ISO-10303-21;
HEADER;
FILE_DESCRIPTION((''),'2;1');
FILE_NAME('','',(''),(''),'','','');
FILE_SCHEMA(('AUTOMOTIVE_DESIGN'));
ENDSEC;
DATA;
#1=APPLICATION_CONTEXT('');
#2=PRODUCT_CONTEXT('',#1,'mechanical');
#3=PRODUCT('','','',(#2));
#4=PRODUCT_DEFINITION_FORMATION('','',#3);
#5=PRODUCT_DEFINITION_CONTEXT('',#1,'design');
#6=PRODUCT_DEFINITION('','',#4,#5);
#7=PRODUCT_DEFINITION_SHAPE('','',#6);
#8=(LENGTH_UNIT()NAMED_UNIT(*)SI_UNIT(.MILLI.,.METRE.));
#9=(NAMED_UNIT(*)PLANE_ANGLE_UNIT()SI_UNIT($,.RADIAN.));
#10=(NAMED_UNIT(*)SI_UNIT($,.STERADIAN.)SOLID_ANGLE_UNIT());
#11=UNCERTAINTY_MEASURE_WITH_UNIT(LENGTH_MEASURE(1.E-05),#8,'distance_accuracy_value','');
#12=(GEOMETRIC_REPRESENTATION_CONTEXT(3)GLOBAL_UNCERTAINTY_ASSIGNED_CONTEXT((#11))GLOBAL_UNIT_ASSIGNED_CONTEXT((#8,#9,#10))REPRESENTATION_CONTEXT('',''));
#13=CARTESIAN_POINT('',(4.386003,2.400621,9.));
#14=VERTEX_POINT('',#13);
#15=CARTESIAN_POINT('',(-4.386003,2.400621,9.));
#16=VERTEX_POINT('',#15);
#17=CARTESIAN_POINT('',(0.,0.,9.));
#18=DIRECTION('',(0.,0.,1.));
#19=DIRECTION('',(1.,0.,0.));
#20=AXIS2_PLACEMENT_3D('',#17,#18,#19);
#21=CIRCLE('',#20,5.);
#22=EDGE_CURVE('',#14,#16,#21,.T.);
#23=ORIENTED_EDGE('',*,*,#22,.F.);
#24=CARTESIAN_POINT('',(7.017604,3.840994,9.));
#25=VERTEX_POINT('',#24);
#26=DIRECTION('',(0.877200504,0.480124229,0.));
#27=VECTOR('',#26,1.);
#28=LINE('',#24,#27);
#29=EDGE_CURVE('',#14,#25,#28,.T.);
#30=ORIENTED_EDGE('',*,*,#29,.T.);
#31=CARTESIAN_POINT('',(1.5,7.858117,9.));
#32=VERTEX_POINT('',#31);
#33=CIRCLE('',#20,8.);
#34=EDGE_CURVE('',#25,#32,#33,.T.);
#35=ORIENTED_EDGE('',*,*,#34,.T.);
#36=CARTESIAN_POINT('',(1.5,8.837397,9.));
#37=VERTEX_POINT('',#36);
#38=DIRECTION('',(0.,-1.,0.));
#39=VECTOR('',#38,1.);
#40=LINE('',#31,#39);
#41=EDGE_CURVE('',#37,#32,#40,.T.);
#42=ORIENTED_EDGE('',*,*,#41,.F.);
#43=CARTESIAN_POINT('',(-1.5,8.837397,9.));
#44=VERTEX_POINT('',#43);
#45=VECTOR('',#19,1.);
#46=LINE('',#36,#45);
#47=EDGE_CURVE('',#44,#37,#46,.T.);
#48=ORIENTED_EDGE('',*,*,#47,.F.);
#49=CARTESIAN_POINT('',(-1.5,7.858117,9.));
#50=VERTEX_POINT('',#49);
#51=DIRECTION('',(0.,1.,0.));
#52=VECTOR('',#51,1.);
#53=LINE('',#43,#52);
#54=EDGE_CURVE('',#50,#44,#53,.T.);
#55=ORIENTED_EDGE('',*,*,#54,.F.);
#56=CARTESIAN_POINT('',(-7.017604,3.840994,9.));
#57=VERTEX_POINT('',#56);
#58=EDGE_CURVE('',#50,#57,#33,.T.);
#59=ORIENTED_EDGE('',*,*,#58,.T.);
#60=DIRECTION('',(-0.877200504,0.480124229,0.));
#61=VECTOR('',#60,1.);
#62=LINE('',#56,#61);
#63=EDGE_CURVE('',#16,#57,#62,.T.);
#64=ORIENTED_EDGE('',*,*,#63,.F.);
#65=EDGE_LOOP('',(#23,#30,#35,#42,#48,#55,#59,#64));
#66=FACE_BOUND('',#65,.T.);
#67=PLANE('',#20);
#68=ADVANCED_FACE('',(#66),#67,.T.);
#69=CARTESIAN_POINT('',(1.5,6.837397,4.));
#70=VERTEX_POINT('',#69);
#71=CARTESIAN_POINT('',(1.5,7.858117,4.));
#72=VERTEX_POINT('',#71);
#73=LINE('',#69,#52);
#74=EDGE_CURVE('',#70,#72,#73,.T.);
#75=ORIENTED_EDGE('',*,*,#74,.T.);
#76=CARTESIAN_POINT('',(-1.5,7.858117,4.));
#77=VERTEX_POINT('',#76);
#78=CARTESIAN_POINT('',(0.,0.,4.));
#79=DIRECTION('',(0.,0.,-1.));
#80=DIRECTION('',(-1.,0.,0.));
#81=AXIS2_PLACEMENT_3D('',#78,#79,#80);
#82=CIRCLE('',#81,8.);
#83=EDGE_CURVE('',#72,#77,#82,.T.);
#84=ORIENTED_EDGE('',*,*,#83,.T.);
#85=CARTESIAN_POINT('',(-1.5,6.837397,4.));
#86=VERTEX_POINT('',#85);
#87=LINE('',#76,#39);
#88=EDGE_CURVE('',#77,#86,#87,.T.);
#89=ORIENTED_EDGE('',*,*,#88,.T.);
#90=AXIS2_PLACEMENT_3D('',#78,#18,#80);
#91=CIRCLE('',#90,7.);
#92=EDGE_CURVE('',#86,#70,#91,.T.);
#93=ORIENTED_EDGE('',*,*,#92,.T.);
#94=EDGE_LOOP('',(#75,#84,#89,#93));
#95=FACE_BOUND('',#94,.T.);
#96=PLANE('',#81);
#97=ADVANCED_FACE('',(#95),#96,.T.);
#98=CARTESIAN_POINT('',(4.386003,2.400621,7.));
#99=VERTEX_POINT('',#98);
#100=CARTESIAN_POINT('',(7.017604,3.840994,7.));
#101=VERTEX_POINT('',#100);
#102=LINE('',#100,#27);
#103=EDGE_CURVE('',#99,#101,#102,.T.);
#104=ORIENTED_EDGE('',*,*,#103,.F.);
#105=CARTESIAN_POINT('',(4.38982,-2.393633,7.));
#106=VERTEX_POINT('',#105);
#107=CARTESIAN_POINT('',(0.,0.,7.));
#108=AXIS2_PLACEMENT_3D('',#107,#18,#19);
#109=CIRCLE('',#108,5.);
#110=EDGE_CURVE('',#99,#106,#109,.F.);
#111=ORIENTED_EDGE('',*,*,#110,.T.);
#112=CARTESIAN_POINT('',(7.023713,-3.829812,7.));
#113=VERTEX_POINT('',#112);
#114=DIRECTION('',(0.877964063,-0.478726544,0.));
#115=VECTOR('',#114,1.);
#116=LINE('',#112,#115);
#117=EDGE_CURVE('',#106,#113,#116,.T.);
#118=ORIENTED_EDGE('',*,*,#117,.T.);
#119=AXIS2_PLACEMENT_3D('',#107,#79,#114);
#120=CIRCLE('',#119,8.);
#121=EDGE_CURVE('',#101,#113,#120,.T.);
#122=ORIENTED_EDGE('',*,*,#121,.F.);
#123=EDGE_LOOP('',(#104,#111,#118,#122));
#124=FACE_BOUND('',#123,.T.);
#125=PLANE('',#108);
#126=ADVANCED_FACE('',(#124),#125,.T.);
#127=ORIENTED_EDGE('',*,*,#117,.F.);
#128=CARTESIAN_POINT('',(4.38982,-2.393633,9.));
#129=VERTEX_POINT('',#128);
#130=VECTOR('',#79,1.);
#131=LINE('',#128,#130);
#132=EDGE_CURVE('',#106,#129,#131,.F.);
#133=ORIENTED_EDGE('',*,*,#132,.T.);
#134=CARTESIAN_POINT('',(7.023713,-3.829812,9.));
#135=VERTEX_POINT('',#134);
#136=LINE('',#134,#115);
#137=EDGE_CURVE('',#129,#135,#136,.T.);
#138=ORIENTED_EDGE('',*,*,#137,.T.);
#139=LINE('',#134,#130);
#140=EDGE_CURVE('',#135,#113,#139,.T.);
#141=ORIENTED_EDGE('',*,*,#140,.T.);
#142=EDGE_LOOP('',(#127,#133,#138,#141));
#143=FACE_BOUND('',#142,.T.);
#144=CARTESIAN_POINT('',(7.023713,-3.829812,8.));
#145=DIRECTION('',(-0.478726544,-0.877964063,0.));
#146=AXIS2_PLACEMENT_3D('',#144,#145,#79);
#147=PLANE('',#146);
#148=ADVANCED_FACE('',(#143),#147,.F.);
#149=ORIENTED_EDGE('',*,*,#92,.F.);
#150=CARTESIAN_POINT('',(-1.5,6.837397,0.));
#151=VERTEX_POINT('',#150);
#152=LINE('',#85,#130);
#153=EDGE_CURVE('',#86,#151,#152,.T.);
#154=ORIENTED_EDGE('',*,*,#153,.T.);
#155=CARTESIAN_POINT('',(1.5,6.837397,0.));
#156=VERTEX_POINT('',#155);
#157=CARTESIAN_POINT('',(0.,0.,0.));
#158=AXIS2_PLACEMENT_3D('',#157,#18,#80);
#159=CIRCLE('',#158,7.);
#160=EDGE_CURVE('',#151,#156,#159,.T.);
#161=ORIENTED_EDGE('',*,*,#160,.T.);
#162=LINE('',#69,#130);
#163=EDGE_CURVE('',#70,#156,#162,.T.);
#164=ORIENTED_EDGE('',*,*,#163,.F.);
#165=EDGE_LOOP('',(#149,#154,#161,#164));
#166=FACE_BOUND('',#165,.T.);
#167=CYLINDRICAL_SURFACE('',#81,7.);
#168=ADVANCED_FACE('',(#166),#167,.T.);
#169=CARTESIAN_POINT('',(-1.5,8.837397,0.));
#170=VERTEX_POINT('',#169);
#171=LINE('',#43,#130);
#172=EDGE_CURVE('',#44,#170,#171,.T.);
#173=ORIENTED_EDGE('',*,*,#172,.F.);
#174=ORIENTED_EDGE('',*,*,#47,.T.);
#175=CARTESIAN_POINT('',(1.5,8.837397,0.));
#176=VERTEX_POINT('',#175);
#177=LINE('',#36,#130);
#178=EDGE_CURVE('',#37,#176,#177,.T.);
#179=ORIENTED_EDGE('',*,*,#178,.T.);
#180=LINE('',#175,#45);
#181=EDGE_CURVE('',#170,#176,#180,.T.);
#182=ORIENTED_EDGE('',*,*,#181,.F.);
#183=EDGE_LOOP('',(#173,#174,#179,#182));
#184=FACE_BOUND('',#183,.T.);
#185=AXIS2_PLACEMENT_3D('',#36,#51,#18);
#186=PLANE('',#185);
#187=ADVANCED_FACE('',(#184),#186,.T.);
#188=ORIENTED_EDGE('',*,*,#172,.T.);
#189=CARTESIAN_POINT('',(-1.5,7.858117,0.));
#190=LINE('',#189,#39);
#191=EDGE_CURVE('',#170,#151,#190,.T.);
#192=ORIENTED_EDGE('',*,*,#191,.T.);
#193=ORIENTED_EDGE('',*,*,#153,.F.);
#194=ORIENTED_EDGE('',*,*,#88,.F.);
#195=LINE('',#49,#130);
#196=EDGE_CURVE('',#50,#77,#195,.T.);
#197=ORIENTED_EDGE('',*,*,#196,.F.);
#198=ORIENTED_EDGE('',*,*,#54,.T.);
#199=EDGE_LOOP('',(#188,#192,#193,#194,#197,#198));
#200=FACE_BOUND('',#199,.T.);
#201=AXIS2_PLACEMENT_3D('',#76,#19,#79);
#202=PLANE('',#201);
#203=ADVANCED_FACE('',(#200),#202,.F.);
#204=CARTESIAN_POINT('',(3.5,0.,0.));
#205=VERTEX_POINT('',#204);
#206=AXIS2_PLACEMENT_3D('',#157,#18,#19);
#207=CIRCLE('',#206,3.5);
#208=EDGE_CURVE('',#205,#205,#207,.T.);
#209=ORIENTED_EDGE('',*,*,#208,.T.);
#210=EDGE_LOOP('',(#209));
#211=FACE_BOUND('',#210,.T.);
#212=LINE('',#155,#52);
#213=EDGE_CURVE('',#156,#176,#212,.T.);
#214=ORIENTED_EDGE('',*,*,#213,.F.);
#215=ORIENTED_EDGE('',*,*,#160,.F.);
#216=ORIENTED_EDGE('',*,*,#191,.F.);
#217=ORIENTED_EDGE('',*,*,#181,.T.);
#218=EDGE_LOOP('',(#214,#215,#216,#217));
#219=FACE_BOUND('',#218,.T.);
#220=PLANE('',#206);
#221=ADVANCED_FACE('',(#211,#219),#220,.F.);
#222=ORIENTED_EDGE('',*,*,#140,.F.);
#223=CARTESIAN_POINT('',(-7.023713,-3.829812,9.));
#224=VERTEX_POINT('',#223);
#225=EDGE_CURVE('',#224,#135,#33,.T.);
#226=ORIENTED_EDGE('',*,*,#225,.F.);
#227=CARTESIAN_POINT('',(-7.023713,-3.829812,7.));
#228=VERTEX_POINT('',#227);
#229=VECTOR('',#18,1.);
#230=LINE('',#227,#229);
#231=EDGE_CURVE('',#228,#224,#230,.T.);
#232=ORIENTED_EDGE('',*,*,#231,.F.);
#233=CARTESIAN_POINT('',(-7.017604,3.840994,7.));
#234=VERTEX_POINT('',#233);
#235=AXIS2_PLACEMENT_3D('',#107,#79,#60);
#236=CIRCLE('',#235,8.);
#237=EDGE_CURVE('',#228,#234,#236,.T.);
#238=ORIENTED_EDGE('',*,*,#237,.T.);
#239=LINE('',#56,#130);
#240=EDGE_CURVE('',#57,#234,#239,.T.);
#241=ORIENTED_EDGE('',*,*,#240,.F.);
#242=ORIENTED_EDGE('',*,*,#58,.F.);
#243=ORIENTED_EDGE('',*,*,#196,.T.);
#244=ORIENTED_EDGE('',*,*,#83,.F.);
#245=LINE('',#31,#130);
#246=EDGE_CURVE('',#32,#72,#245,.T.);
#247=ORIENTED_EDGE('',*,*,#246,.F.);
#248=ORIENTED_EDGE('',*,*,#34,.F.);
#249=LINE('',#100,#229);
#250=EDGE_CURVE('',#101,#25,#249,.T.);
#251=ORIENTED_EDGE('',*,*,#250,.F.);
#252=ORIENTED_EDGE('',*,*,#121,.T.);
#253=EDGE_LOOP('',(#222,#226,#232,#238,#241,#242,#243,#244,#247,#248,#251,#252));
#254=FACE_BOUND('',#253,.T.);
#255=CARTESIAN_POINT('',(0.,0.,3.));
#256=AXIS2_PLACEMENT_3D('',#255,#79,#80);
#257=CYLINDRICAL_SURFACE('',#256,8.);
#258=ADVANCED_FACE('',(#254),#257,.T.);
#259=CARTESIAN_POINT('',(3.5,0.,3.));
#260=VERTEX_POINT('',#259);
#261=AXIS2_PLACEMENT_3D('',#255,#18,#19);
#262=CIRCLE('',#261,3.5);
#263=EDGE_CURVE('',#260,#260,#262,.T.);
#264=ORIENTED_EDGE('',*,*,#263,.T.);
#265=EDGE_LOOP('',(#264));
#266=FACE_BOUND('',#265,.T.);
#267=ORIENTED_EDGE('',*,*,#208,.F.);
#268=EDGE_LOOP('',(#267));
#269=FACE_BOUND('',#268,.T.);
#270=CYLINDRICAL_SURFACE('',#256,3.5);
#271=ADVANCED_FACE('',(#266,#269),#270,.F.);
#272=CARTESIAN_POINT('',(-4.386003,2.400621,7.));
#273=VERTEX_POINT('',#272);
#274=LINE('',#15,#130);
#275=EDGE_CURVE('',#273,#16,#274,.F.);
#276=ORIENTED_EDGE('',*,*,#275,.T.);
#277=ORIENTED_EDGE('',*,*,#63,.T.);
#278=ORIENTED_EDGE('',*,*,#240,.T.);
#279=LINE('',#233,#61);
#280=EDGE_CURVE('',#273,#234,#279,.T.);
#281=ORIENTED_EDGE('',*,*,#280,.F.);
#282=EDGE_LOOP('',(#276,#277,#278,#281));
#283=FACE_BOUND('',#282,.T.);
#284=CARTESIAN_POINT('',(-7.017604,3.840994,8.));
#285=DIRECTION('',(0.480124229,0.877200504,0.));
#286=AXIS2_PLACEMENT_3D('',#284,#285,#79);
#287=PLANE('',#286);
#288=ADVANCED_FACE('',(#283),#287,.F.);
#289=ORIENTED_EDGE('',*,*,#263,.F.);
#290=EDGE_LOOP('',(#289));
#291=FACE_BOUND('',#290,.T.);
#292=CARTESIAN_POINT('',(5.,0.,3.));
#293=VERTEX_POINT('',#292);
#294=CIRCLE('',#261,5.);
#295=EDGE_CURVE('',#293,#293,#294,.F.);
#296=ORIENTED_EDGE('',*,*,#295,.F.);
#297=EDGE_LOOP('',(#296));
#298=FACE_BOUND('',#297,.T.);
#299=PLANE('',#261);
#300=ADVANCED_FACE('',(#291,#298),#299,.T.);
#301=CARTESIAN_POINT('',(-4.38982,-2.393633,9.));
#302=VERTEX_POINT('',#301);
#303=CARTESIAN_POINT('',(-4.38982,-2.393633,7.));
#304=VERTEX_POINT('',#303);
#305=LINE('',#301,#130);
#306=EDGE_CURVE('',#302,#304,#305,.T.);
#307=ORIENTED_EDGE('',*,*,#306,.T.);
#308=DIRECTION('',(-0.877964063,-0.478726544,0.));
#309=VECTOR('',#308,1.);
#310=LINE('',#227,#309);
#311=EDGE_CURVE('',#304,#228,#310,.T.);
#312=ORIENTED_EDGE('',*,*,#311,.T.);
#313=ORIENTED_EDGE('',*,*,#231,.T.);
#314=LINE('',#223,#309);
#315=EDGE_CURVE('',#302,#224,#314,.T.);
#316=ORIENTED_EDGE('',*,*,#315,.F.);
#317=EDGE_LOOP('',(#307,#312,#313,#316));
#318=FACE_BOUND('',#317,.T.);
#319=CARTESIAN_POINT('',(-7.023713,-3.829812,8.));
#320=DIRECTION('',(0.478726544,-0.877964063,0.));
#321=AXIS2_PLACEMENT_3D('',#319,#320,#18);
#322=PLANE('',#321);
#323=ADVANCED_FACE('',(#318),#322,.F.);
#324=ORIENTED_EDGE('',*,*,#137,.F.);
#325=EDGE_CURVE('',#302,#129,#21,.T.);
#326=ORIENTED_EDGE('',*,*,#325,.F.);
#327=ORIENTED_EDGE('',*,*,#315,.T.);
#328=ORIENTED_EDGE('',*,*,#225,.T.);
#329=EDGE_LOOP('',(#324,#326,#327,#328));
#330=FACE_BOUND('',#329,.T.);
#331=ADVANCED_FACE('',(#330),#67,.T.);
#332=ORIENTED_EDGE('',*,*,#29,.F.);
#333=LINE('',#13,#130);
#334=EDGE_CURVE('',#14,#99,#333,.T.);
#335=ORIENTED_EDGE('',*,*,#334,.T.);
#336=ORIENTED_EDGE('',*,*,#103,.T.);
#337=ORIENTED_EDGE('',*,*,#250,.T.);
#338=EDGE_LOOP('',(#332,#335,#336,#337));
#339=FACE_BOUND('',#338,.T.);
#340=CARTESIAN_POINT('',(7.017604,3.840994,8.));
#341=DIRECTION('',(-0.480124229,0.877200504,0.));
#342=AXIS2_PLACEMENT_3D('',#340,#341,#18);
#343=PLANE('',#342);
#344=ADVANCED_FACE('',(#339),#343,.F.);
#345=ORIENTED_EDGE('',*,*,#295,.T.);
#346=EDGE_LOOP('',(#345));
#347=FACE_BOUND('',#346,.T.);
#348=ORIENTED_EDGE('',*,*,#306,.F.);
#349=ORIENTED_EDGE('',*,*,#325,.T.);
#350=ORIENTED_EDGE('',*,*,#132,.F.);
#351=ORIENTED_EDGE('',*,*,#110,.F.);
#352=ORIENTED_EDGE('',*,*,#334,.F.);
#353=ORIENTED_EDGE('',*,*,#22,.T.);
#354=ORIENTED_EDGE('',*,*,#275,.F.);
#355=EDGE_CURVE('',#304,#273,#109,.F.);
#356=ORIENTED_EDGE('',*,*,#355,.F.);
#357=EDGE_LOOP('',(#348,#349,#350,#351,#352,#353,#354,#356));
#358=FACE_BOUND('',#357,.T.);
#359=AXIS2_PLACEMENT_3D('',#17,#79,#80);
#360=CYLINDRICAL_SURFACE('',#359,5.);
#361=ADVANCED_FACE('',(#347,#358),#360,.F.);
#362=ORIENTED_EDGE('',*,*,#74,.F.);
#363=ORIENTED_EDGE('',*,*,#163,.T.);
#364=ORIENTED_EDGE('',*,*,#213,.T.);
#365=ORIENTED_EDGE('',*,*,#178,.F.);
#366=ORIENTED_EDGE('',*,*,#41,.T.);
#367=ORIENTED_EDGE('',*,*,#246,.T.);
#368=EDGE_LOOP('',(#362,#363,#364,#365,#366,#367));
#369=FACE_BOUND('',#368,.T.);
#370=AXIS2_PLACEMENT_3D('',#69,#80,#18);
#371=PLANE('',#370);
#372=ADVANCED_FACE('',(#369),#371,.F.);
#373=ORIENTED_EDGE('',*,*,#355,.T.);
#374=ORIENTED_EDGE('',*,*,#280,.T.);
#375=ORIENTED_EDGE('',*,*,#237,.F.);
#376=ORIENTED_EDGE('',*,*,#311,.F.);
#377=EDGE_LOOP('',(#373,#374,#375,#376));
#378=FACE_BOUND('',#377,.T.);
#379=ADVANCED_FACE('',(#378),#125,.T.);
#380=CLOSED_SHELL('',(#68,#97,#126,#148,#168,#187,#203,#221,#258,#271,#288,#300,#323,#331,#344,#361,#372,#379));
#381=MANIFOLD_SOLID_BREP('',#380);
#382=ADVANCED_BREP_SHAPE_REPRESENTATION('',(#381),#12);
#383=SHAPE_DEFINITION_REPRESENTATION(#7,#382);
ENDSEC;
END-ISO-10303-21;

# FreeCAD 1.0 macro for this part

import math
import FreeCAD as App
import Part
import Sketcher

doc = App.newDocument("Part")
params = doc.addObject("Spreadsheet::Sheet", "Params")
for row, (alias, value) in enumerate([
    ("sketch1_diameter", "16 mm"),
    ("sketch1_diameter2", "7 mm"),
    ("pad1_length", "3 mm"),
    ("sketch2_diameter", "16 mm"),
    ("sketch2_diameter2", "10 mm"),
    ("pad2_length", "6 mm"),
    ("sketch3_width", "4 mm"),
    ("sketch3_height", "2 mm"),
    ("groove_angle", "57.29578 deg"),
    ("sketch4_width", "4 mm"),
    ("sketch4_height", "2 mm"),
    ("groove2_angle", "57.29578 deg"),
    ("sketch5_radius", "8 mm"),
    ("sketch5_radius2", "7 mm"),
    ("pocket1_length", "4 mm"),
    ("sketch6_radius", "8 mm"),
    ("sketch6_width", "3 mm"),
    ("pad3_length", "9 mm"),
], start=1):
    params.set(f"A{row}", alias)
    params.set(f"B{row}", "=" + value)
    params.setAlias(f"B{row}", alias)

body = doc.addObject("PartDesign::Body", "Body")

# Sketch on XY plane
sketch1 = doc.addObject("Sketcher::SketchObject", "Sketch")
body.addObject(sketch1)
sketch1.AttachmentSupport = (doc.XY_Plane, [""])
sketch1.MapMode = "FlatFace"
sketch1.addGeometry([
    Part.Circle(App.Vector(0, 0, 0), App.Vector(0, 0, 1), 8),
    Part.Circle(App.Vector(0, 0, 0), App.Vector(0, 0, 1), 3.5),
], False)
sketch1.addConstraint([
    Sketcher.Constraint("Coincident", 0, 3, -1, 1),
    Sketcher.Constraint("Coincident", 1, 3, -1, 1),
    Sketcher.Constraint("Diameter", 0, 16.0),
    Sketcher.Constraint("Diameter", 1, 7.0),
])
sketch1.setExpression("Constraints[2]", "Params.sketch1_diameter")
sketch1.setExpression("Constraints[3]", "Params.sketch1_diameter2")
pad1 = doc.addObject("PartDesign::Pad", "Pad")
body.addObject(pad1)
pad1.Profile = sketch1
pad1.setExpression("Length", "Params.pad1_length")

# Sketch on XY plane
sketch2 = doc.addObject("Sketcher::SketchObject", "Sketch001")
body.addObject(sketch2)
sketch2.AttachmentSupport = (doc.XY_Plane, [""])
sketch2.MapMode = "FlatFace"
sketch2.AttachmentOffset = App.Placement(App.Vector(0, 0, 3), App.Rotation())
sketch2.addGeometry([
    Part.Circle(App.Vector(0, 0, 0), App.Vector(0, 0, 1), 8),
    Part.Circle(App.Vector(0, 0, 0), App.Vector(0, 0, 1), 5),
], False)
sketch2.addConstraint([
    Sketcher.Constraint("Coincident", 0, 3, -1, 1),
    Sketcher.Constraint("Coincident", 1, 3, -1, 1),
    Sketcher.Constraint("Diameter", 0, 16.0),
    Sketcher.Constraint("Diameter", 1, 10.0),
])
sketch2.setExpression("Constraints[2]", "Params.sketch2_diameter")
sketch2.setExpression("Constraints[3]", "Params.sketch2_diameter2")
pad2 = doc.addObject("PartDesign::Pad", "Pad001")
body.addObject(pad2)
pad2.Profile = sketch2
pad2.setExpression("Length", "Params.pad2_length")

# Sketch on an angled plane
sketch3 = doc.addObject("Sketcher::SketchObject", "Sketch002")
body.addObject(sketch3)
sketch3.Placement = App.Placement(App.Vector(0, 0, 0), App.Rotation(App.Vector(-0.877964063, -0.478726544, 0), App.Vector(0, 0, -1), App.Vector(0.478726544, -0.877964063, 0), "ZXY"))
sketch3.addGeometry([
    Part.LineSegment(App.Vector(4, -7, 0), App.Vector(4, -9, 0)),
    Part.LineSegment(App.Vector(4, -9, 0), App.Vector(8, -9, 0)),
    Part.LineSegment(App.Vector(8, -9, 0), App.Vector(8, -7, 0)),
    Part.LineSegment(App.Vector(8, -7, 0), App.Vector(4, -7, 0)),
], False)
sketch3.addConstraint([
    Sketcher.Constraint("Coincident", 0, 2, 1, 1),
    Sketcher.Constraint("Coincident", 1, 2, 2, 1),
    Sketcher.Constraint("Coincident", 2, 2, 3, 1),
    Sketcher.Constraint("Coincident", 3, 2, 0, 1),
    Sketcher.Constraint("Vertical", 0),
    Sketcher.Constraint("Horizontal", 1),
    Sketcher.Constraint("Vertical", 2),
    Sketcher.Constraint("Horizontal", 3),
    Sketcher.Constraint("DistanceX", 1, 1, 1, 2, 4.0),
    Sketcher.Constraint("DistanceY", 0, 2, 0, 1, 2.0),
    Sketcher.Constraint("DistanceX", -1, 1, 0, 2, 4.0),
    Sketcher.Constraint("DistanceY", 0, 2, -1, 1, 9.0),
])
sketch3.setExpression("Constraints[8]", "Params.sketch3_width")
sketch3.setExpression("Constraints[9]", "Params.sketch3_height")
groove = doc.addObject("PartDesign::Groove", "Groove")
body.addObject(groove)
groove.Profile = sketch3
groove.ReferenceAxis = (sketch3, ["V_Axis"])
groove.setExpression("Angle", "Params.groove_angle")

# Sketch on an angled plane
sketch4 = doc.addObject("Sketcher::SketchObject", "Sketch003")
body.addObject(sketch4)
sketch4.Placement = App.Placement(App.Vector(0, 0, 0), App.Rotation(App.Vector(0.877200504, 0.480124229, 0), App.Vector(0, 0, -0.999999999), App.Vector(-0.480124229, 0.877200504, 0), "ZXY"))
sketch4.addGeometry([
    Part.LineSegment(App.Vector(4, -7, 0), App.Vector(4, -9, 0)),
    Part.LineSegment(App.Vector(4, -9, 0), App.Vector(8, -9, 0)),
    Part.LineSegment(App.Vector(8, -9, 0), App.Vector(8, -7, 0)),
    Part.LineSegment(App.Vector(8, -7, 0), App.Vector(4, -7, 0)),
], False)
sketch4.addConstraint([
    Sketcher.Constraint("Coincident", 0, 2, 1, 1),
    Sketcher.Constraint("Coincident", 1, 2, 2, 1),
    Sketcher.Constraint("Coincident", 2, 2, 3, 1),
    Sketcher.Constraint("Coincident", 3, 2, 0, 1),
    Sketcher.Constraint("Vertical", 0),
    Sketcher.Constraint("Horizontal", 1),
    Sketcher.Constraint("Vertical", 2),
    Sketcher.Constraint("Horizontal", 3),
    Sketcher.Constraint("DistanceX", 1, 1, 1, 2, 4.0),
    Sketcher.Constraint("DistanceY", 0, 2, 0, 1, 2.0),
    Sketcher.Constraint("DistanceX", -1, 1, 0, 2, 4.0),
    Sketcher.Constraint("DistanceY", 0, 2, -1, 1, 9.0),
])
sketch4.setExpression("Constraints[8]", "Params.sketch4_width")
sketch4.setExpression("Constraints[9]", "Params.sketch4_height")
groove2 = doc.addObject("PartDesign::Groove", "Groove001")
body.addObject(groove2)
groove2.Profile = sketch4
groove2.ReferenceAxis = (sketch4, ["V_Axis"])
groove2.setExpression("Angle", "Params.groove2_angle")

# Sketch on XY plane
sketch5 = doc.addObject("Sketcher::SketchObject", "Sketch004")
body.addObject(sketch5)
sketch5.AttachmentSupport = (doc.XY_Plane, [""])
sketch5.MapMode = "FlatFace"
sketch5.addGeometry([
    Part.LineSegment(App.Vector(1.5, 6.8, 0), App.Vector(1.5, 7.9, 0)),
    Part.ArcOfCircle(Part.Circle(App.Vector(0, 0, 0), App.Vector(0, 0, 1), 8), math.radians(101), math.radians(439)),
    Part.LineSegment(App.Vector(-1.5, 7.9, 0), App.Vector(-1.5, 6.8, 0)),
    Part.ArcOfCircle(Part.Circle(App.Vector(0, 0, 0), App.Vector(0, 0, 1), 7), math.radians(102), math.radians(438)),
], False)
sketch5.addConstraint([
    Sketcher.Constraint("Coincident", 0, 2, 1, 2),
    Sketcher.Constraint("Coincident", 1, 1, 2, 1),
    Sketcher.Constraint("Coincident", 2, 2, 3, 1),
    Sketcher.Constraint("Coincident", 3, 2, 0, 1),
    Sketcher.Constraint("Vertical", 0),
    Sketcher.Constraint("Vertical", 2),
    Sketcher.Constraint("Coincident", 1, 3, -1, 1),
    Sketcher.Constraint("Coincident", 3, 3, -1, 1),
    Sketcher.Constraint("Horizontal", 0, 2, 1, 1),
    Sketcher.Constraint("Radius", 1, 8.0),
    Sketcher.Constraint("Radius", 3, 7.0),
    Sketcher.Constraint("DistanceX", 1, 1, 0, 2, 3.0),
])
sketch5.setExpression("Constraints[9]", "Params.sketch5_radius")
sketch5.setExpression("Constraints[10]", "Params.sketch5_radius2")
pocket1 = doc.addObject("PartDesign::Pocket", "Pocket")
body.addObject(pocket1)
pocket1.Profile = sketch5
pocket1.setExpression("Length", "Params.pocket1_length")
pocket1.Reversed = True

# Sketch on XY plane
sketch6 = doc.addObject("Sketcher::SketchObject", "Sketch005")
body.addObject(sketch6)
sketch6.AttachmentSupport = (doc.XY_Plane, [""])
sketch6.MapMode = "FlatFace"
sketch6.addGeometry([
    Part.LineSegment(App.Vector(1.5, 8.8, 0), App.Vector(1.5, 7.9, 0)),
    Part.ArcOfCircle(Part.Circle(App.Vector(0, 0, 0), App.Vector(0, 0, 1), 8), math.radians(79), math.radians(101)),
    Part.LineSegment(App.Vector(-1.5, 7.9, 0), App.Vector(-1.5, 8.8, 0)),
    Part.LineSegment(App.Vector(-1.5, 8.8, 0), App.Vector(1.5, 8.8, 0)),
], False)
sketch6.addConstraint([
    Sketcher.Constraint("Coincident", 0, 2, 1, 1),
    Sketcher.Constraint("Coincident", 1, 2, 2, 1),
    Sketcher.Constraint("Coincident", 2, 2, 3, 1),
    Sketcher.Constraint("Coincident", 3, 2, 0, 1),
    Sketcher.Constraint("Vertical", 0),
    Sketcher.Constraint("Vertical", 2),
    Sketcher.Constraint("Horizontal", 3),
    Sketcher.Constraint("Coincident", 1, 3, -1, 1),
    Sketcher.Constraint("Horizontal", 0, 2, 1, 2),
    Sketcher.Constraint("Radius", 1, 8.0),
    Sketcher.Constraint("DistanceX", 3, 1, 3, 2, 3.0),
    Sketcher.Constraint("DistanceY", 0, 2, 0, 1, 0.97928),
])
sketch6.setExpression("Constraints[9]", "Params.sketch6_radius")
sketch6.setExpression("Constraints[10]", "Params.sketch6_width")
pad3 = doc.addObject("PartDesign::Pad", "Pad002")
body.addObject(pad3)
pad3.Profile = sketch6
pad3.setExpression("Length", "Params.pad3_length")

doc.recompute()
